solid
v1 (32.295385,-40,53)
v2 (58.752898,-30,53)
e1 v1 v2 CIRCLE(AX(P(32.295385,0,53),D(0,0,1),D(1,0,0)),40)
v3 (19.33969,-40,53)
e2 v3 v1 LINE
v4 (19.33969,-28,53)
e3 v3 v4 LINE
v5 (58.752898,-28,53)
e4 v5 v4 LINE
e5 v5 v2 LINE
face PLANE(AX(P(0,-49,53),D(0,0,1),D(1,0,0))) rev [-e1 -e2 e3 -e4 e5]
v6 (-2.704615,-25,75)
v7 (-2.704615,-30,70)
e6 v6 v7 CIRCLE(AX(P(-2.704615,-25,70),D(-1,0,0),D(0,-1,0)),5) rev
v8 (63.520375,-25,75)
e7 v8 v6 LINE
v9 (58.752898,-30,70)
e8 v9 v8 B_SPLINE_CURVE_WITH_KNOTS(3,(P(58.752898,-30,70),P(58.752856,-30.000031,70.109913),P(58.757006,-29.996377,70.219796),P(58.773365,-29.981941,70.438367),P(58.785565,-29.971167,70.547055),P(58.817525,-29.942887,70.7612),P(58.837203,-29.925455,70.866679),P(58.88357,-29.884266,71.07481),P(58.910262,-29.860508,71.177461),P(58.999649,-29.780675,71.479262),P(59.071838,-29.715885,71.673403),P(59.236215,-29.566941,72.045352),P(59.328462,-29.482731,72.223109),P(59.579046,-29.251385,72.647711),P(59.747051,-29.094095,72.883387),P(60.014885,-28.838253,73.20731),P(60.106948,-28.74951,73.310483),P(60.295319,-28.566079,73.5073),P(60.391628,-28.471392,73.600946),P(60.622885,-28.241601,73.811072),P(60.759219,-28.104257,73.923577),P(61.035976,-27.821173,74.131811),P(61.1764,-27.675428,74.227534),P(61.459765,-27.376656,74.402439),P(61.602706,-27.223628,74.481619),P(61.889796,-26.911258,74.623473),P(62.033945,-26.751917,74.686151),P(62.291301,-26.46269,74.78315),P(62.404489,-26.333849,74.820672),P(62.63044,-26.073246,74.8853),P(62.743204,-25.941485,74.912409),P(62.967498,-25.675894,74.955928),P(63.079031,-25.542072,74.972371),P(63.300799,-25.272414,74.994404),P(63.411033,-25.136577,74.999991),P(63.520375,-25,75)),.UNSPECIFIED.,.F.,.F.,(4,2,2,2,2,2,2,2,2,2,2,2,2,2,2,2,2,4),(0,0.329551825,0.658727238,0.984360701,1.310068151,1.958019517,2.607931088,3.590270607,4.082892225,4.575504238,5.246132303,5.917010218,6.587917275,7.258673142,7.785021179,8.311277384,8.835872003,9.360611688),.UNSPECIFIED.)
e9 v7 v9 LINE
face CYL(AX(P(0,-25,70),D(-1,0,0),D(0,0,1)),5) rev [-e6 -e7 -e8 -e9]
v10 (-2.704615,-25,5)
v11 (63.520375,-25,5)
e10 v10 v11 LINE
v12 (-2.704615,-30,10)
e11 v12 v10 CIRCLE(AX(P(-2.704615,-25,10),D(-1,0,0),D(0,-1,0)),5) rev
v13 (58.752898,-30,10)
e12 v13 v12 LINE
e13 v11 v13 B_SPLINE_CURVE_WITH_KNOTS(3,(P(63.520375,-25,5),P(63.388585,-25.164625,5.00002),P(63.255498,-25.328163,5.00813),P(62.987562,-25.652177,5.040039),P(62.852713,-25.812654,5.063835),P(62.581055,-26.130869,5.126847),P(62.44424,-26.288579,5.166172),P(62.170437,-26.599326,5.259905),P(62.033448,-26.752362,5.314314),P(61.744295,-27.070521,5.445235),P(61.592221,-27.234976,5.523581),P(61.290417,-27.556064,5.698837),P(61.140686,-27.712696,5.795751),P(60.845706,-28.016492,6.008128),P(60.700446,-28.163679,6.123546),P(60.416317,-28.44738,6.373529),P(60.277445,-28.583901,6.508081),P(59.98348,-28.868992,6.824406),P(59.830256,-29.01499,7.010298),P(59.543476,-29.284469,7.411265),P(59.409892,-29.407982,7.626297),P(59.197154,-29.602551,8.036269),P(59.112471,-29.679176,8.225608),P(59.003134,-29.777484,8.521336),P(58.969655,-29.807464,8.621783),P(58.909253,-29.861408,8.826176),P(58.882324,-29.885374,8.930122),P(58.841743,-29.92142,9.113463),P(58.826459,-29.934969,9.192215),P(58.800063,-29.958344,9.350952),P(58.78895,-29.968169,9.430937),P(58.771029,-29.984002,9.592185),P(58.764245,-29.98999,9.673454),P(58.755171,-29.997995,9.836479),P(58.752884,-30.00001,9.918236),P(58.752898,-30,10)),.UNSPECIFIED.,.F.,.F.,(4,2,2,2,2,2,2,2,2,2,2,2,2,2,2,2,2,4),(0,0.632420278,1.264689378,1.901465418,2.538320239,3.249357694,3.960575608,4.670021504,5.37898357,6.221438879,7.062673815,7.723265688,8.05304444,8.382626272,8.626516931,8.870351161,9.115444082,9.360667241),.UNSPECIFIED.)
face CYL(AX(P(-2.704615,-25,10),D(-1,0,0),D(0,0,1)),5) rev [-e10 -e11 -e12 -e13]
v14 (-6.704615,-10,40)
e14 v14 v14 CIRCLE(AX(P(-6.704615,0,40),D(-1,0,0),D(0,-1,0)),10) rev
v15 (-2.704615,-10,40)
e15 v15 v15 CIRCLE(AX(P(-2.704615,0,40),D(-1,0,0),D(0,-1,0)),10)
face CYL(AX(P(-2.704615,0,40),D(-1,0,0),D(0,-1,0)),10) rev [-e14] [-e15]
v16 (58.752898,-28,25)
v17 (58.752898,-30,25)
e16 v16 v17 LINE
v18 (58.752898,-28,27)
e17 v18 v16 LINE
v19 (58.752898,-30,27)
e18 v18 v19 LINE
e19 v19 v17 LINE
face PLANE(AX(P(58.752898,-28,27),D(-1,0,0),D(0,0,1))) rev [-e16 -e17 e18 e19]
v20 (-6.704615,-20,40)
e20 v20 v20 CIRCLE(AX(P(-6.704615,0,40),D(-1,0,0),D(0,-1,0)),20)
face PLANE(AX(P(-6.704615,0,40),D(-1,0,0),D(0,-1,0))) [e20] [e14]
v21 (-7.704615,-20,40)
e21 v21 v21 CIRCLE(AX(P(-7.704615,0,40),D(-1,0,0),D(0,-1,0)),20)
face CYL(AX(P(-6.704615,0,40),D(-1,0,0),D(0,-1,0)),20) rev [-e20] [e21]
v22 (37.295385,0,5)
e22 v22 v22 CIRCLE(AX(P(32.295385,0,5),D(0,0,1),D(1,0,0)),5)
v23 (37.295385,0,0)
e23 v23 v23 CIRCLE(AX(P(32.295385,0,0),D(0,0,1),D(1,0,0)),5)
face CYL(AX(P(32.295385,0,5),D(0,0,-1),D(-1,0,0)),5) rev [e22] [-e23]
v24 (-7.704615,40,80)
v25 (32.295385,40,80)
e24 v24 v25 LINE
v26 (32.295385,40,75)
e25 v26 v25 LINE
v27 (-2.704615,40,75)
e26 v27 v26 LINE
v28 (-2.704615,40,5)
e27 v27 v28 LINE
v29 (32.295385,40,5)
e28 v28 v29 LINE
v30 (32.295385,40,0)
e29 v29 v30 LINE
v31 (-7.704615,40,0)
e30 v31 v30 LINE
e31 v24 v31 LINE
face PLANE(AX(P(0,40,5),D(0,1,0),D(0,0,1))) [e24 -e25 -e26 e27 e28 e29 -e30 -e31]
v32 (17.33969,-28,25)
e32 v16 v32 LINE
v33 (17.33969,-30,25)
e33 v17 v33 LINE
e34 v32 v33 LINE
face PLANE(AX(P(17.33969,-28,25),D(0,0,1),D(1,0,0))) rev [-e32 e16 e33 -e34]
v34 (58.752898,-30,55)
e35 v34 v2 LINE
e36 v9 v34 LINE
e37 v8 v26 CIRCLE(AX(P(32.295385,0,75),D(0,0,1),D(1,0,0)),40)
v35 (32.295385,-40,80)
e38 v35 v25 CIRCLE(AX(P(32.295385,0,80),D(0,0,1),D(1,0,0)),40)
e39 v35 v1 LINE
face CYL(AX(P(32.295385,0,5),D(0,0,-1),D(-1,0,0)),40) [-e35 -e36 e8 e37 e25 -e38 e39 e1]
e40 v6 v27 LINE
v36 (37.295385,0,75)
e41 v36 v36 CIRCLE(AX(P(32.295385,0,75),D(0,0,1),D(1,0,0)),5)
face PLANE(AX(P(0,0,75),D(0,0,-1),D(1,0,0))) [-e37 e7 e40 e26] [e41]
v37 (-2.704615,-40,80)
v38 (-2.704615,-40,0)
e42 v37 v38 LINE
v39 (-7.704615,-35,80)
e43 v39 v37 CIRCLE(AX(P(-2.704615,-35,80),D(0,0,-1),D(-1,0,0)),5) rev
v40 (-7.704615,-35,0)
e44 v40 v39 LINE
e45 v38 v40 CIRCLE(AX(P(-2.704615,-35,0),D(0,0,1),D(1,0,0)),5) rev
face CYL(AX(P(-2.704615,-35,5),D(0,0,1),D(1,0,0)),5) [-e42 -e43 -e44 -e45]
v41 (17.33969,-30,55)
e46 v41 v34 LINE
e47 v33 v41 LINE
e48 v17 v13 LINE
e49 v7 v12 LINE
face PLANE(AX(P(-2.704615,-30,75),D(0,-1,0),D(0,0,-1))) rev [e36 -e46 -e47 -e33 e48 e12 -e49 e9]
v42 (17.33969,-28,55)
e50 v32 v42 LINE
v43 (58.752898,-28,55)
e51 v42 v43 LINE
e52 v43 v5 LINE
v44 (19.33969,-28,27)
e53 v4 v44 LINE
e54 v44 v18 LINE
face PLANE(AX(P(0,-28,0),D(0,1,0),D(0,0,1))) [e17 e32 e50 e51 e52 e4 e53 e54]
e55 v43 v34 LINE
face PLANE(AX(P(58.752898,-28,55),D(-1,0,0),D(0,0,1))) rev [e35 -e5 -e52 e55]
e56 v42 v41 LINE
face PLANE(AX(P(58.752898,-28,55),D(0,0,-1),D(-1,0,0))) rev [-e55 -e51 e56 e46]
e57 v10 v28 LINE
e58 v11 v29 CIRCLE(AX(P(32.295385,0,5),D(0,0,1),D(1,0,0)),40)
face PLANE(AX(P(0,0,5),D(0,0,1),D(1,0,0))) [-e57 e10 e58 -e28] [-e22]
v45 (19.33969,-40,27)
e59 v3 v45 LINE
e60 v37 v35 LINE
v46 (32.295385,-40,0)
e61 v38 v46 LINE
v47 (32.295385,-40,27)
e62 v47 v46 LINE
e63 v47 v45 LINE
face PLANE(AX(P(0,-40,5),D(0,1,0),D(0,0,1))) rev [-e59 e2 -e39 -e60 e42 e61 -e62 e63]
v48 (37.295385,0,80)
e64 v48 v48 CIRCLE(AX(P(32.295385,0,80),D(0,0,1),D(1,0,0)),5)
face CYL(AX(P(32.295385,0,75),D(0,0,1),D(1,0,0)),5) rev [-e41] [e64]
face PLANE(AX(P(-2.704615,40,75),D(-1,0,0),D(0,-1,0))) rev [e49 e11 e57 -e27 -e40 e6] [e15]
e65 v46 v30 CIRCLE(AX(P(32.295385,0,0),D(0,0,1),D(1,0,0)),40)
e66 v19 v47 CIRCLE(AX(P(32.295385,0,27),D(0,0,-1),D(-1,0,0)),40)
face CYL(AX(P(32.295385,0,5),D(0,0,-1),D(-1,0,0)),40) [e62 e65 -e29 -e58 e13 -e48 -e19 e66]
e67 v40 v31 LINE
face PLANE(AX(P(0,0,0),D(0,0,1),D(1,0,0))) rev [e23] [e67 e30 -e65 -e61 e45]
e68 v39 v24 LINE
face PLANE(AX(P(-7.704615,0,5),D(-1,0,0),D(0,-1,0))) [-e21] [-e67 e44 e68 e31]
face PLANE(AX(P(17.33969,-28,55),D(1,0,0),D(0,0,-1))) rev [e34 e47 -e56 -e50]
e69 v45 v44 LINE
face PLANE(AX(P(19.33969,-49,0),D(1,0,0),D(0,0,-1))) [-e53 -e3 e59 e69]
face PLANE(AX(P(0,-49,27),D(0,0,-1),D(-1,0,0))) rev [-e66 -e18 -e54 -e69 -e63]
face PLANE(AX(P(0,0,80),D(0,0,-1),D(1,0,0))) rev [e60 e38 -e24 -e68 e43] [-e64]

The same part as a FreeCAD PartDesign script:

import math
import FreeCAD as App
import Part
import Sketcher
Q = App.Units.Quantity


def edges_at(feature, points):
    """Names of the edges that pass closest to the given points."""
    edges = feature.Shape.Edges
    near = lambda p: min(range(len(edges)), key=lambda i: edges[i].distToShape(Part.Vertex(*p))[0])
    return sorted({f"Edge{near(p) + 1}" for p in points})

doc = App.newDocument("Part")
body = doc.addObject("PartDesign::Body", "Body")

# Sketch on XY plane
sketch1 = body.newObject("Sketcher::SketchObject", "Sketch")
sketch1.AttachmentSupport = (doc.getObject("XY_Plane"), [""])
sketch1.MapMode = "FlatFace"
sketch1.addGeometry([
    Part.LineSegment(App.Vector(-8, -40, 0), App.Vector(32, -40, 0)),  # 0
    Part.ArcOfCircle(Part.Circle(App.Vector(32, 0, 0), App.Vector(0, 0, 1), 40), math.radians(-90), math.radians(90)),  # 1
    Part.LineSegment(App.Vector(32, 40, 0), App.Vector(-8, 40, 0)),  # 2
    Part.LineSegment(App.Vector(-8, 40, 0), App.Vector(-8, -40, 0)),  # 3
    Part.Circle(App.Vector(32, 0, 0), App.Vector(0, 0, 1), 5),  # 4
], False)
sketch1.addConstraint([
    Sketcher.Constraint("Tangent", 0, 2, 1, 1),
    Sketcher.Constraint("Tangent", 1, 2, 2, 1),
    Sketcher.Constraint("Coincident", 2, 2, 3, 1),
    Sketcher.Constraint("Coincident", 3, 2, 0, 1),
    Sketcher.Constraint("Horizontal", 0),
    Sketcher.Constraint("Horizontal", 2),
    Sketcher.Constraint("Vertical", 3),
    Sketcher.Constraint("Coincident", 4, 3, 1, 3),
    Sketcher.Constraint("PointOnObject", 1, 3, -1),
    Sketcher.Constraint("Diameter", 4, Q("10 mm")),
    Sketcher.Constraint("Radius", 1, Q("40 mm")),
    Sketcher.Constraint("DistanceX", 0, 1, 0, 2, Q("40 mm")),
    Sketcher.Constraint("DistanceX", -1, 1, 1, 3, Q("32.295385 mm")),
])
pad1 = body.newObject("PartDesign::Pad", "Pad")
pad1.Profile = sketch1
pad1.Length = 5

# Sketch on XY plane
sketch2 = body.newObject("Sketcher::SketchObject", "Sketch001")
sketch2.AttachmentSupport = (doc.getObject("XY_Plane"), [""])
sketch2.MapMode = "FlatFace"
sketch2.AttachmentOffset = App.Placement(App.Vector(0, 0, 5), App.Rotation())
sketch2.addGeometry([
    Part.LineSegment(App.Vector(-3, 40, 0), App.Vector(-8, 40, 0)),
    Part.LineSegment(App.Vector(-8, 40, 0), App.Vector(-8, -40, 0)),
    Part.LineSegment(App.Vector(-8, -40, 0), App.Vector(-3, -40, 0)),
    Part.LineSegment(App.Vector(-3, -40, 0), App.Vector(-3, 40, 0)),
], False)
sketch2.addConstraint([
    Sketcher.Constraint("Coincident", 0, 2, 1, 1),
    Sketcher.Constraint("Coincident", 1, 2, 2, 1),
    Sketcher.Constraint("Coincident", 2, 2, 3, 1),
    Sketcher.Constraint("Coincident", 3, 2, 0, 1),
    Sketcher.Constraint("Horizontal", 0),
    Sketcher.Constraint("Vertical", 1),
    Sketcher.Constraint("Horizontal", 2),
    Sketcher.Constraint("Vertical", 3),
    Sketcher.Constraint("DistanceX", 0, 2, 0, 1, Q("5 mm")),
    Sketcher.Constraint("DistanceY", 1, 2, 1, 1, Q("80 mm")),
    Sketcher.Constraint("DistanceY", -1, 1, 0, 2, Q("40 mm")),
    Sketcher.Constraint("DistanceX", 0, 2, -1, 1, Q("7.704615 mm")),
])
pad2 = body.newObject("PartDesign::Pad", "Pad001")
pad2.Profile = sketch2
pad2.Length = 70
doc.recompute()

datumplane = body.newObject("PartDesign::Plane", "DatumPlane")
datumplane.AttachmentSupport = (doc.getObject("XY_Plane"), [""])
datumplane.MapMode = "FlatFace"
datumplane.AttachmentOffset = App.Placement(App.Vector(0, 0, 40), App.Rotation())
mirrored = body.newObject("PartDesign::Mirrored", "Mirrored")
mirrored.Originals = [pad1]
mirrored.MirrorPlane = (datumplane, [""])
body.Tip = mirrored

# Sketch on XY plane
sketch3 = body.newObject("Sketcher::SketchObject", "Sketch002")
sketch3.AttachmentSupport = (doc.getObject("XY_Plane"), [""])
sketch3.MapMode = "FlatFace"
sketch3.AttachmentOffset = App.Placement(App.Vector(0, 0, 5), App.Rotation())
sketch3.addGeometry([
    Part.LineSegment(App.Vector(-3, -30, 0), App.Vector(-3, -40, 0)),
    Part.LineSegment(App.Vector(-3, -40, 0), App.Vector(32, -40, 0)),
    Part.ArcOfCircle(Part.Circle(App.Vector(32, 0, 0), App.Vector(0, 0, 1), 40), math.radians(-90), math.radians(-49)),
    Part.LineSegment(App.Vector(59, -30, 0), App.Vector(-3, -30, 0)),
], False)
sketch3.addConstraint([
    Sketcher.Constraint("Coincident", 0, 2, 1, 1),
    Sketcher.Constraint("Tangent", 1, 2, 2, 1),
    Sketcher.Constraint("Coincident", 2, 2, 3, 1),
    Sketcher.Constraint("Coincident", 3, 2, 0, 1),
    Sketcher.Constraint("Vertical", 0),
    Sketcher.Constraint("Horizontal", 1),
    Sketcher.Constraint("Horizontal", 3),
    Sketcher.Constraint("PointOnObject", 2, 3, -1),
    Sketcher.Constraint("Radius", 2, Q("40 mm")),
    Sketcher.Constraint("DistanceX", 1, 1, 1, 2, Q("35 mm")),
    Sketcher.Constraint("DistanceY", 0, 2, 0, 1, Q("10 mm")),
    Sketcher.Constraint("DistanceX", -1, 1, 2, 3, Q("32.295385 mm")),
])
pad3 = body.newObject("PartDesign::Pad", "Pad002")
pad3.Profile = sketch3
pad3.Length = 70

# Sketch on YZ plane
sketch4 = body.newObject("Sketcher::SketchObject", "Sketch003")
sketch4.AttachmentSupport = (doc.getObject("YZ_Plane"), [""])
sketch4.MapMode = "FlatFace"
sketch4.AttachmentOffset = App.Placement(App.Vector(0, 0, -7.704615), App.Rotation())
sketch4.addGeometry(Part.Circle(App.Vector(0, 40, 0), App.Vector(0, 0, 1), 10), False)
sketch4.addConstraint([
    Sketcher.Constraint("PointOnObject", 0, 3, -2),
    Sketcher.Constraint("Diameter", 0, Q("20 mm")),
    Sketcher.Constraint("DistanceY", -1, 1, 0, 3, Q("40 mm")),
])
pocket1 = body.newObject("PartDesign::Pocket", "Pocket")
pocket1.Profile = sketch4
pocket1.Length = 5
pocket1.Reversed = True

# Sketch on YZ plane
sketch5 = body.newObject("Sketcher::SketchObject", "Sketch004")
sketch5.AttachmentSupport = (doc.getObject("YZ_Plane"), [""])
sketch5.MapMode = "FlatFace"
sketch5.AttachmentOffset = App.Placement(App.Vector(0, 0, -7.704615), App.Rotation())
sketch5.addGeometry(Part.Circle(App.Vector(0, 40, 0), App.Vector(0, 0, 1), 20), False)
sketch5.addConstraint([
    Sketcher.Constraint("PointOnObject", 0, 3, -2),
    Sketcher.Constraint("Diameter", 0, Q("40 mm")),
    Sketcher.Constraint("DistanceY", -1, 1, 0, 3, Q("40 mm")),
])
pocket2 = body.newObject("PartDesign::Pocket", "Pocket001")
pocket2.Profile = sketch5
pocket2.Length = 1
pocket2.Reversed = True

# Sketch on XZ plane
sketch6 = body.newObject("Sketcher::SketchObject", "Sketch005")
sketch6.AttachmentSupport = (doc.getObject("XZ_Plane"), [""])
sketch6.MapMode = "FlatFace"
sketch6.AttachmentOffset = App.Placement(App.Vector(0, 0, 30), App.Rotation())
sketch6.addGeometry([
    Part.LineSegment(App.Vector(59, 53, 0), App.Vector(59, 27, 0)),
    Part.LineSegment(App.Vector(59, 27, 0), App.Vector(19, 27, 0)),
    Part.LineSegment(App.Vector(19, 27, 0), App.Vector(19, 53, 0)),
    Part.LineSegment(App.Vector(19, 53, 0), App.Vector(59, 53, 0)),
], False)
sketch6.addConstraint([
    Sketcher.Constraint("Coincident", 0, 2, 1, 1),
    Sketcher.Constraint("Coincident", 1, 2, 2, 1),
    Sketcher.Constraint("Coincident", 2, 2, 3, 1),
    Sketcher.Constraint("Coincident", 3, 2, 0, 1),
    Sketcher.Constraint("Vertical", 0),
    Sketcher.Constraint("Horizontal", 1),
    Sketcher.Constraint("Vertical", 2),
    Sketcher.Constraint("Horizontal", 3),
    Sketcher.Constraint("DistanceY", 0, 2, 0, 1, Q("26 mm")),
    Sketcher.Constraint("DistanceY", -1, 1, 0, 2, Q("27 mm")),
    Sketcher.Constraint("DistanceX", 1, 2, 1, 1, Q("39.413208 mm")),
    Sketcher.Constraint("DistanceX", -1, 1, 1, 2, Q("19.33969 mm")),
])
pocket3 = body.newObject("PartDesign::Pocket", "Pocket002")
pocket3.Profile = sketch6
pocket3.Length = 19
pocket3.Reversed = True

# Sketch on XZ plane
sketch7 = body.newObject("Sketcher::SketchObject", "Sketch006")
sketch7.AttachmentSupport = (doc.getObject("XZ_Plane"), [""])
sketch7.MapMode = "FlatFace"
sketch7.AttachmentOffset = App.Placement(App.Vector(0, 0, 30), App.Rotation())
sketch7.addGeometry([
    Part.LineSegment(App.Vector(58.8, 53, 0), App.Vector(19.3, 53, 0)),  # 0
    Part.LineSegment(App.Vector(19.3, 53, 0), App.Vector(19.3, 27, 0)),  # 1
    Part.LineSegment(App.Vector(19.3, 27, 0), App.Vector(58.8, 27, 0)),  # 2
    Part.LineSegment(App.Vector(58.8, 27, 0), App.Vector(58.8, 25, 0)),  # 3
    Part.LineSegment(App.Vector(58.8, 25, 0), App.Vector(17.3, 25, 0)),  # 4
    Part.LineSegment(App.Vector(17.3, 25, 0), App.Vector(17.3, 55, 0)),  # 5
    Part.LineSegment(App.Vector(17.3, 55, 0), App.Vector(58.8, 55, 0)),  # 6
    Part.LineSegment(App.Vector(58.8, 55, 0), App.Vector(58.8, 53, 0)),  # 7
], False)
sketch7.addConstraint([
    Sketcher.Constraint("Coincident", 0, 2, 1, 1),
    Sketcher.Constraint("Coincident", 1, 2, 2, 1),
    Sketcher.Constraint("Coincident", 2, 2, 3, 1),
    Sketcher.Constraint("Coincident", 3, 2, 4, 1),
    Sketcher.Constraint("Coincident", 4, 2, 5, 1),
    Sketcher.Constraint("Coincident", 5, 2, 6, 1),
    Sketcher.Constraint("Coincident", 6, 2, 7, 1),
    Sketcher.Constraint("Coincident", 7, 2, 0, 1),
    Sketcher.Constraint("Horizontal", 0),
    Sketcher.Constraint("Vertical", 1),
    Sketcher.Constraint("Horizontal", 2),
    Sketcher.Constraint("Vertical", 3),
    Sketcher.Constraint("Horizontal", 4),
    Sketcher.Constraint("Vertical", 5),
    Sketcher.Constraint("Horizontal", 6),
    Sketcher.Constraint("Vertical", 7),
    Sketcher.Constraint("Vertical", 3, 2, 6, 2),
    Sketcher.Constraint("Equal", 3, 7),
    Sketcher.Constraint("DistanceY", 1, 2, 1, 1, Q("26 mm")),
    Sketcher.Constraint("DistanceY", 3, 2, 3, 1, Q("2 mm")),
    Sketcher.Constraint("DistanceY", -1, 1, 0, 2, Q("53 mm")),
    Sketcher.Constraint("DistanceX", 4, 2, 1, 2, Q("2 mm")),
    Sketcher.Constraint("DistanceX", 0, 2, 0, 1, Q("39.413208 mm")),
    Sketcher.Constraint("DistanceX", -1, 1, 0, 2, Q("19.33969 mm")),
])
pad4 = body.newObject("PartDesign::Pad", "Pad003")
pad4.Profile = sketch7
pad4.Length = 2
pad4.Reversed = True
doc.recompute()

fillet = body.newObject("PartDesign::Fillet", "Fillet")
fillet.Base = (pad4, edges_at(pad4, [(-7.705, -40, 40), (28.024, -30, 5), (28.024, -30, 75)]))
fillet.Radius = 5

doc.recompute()
